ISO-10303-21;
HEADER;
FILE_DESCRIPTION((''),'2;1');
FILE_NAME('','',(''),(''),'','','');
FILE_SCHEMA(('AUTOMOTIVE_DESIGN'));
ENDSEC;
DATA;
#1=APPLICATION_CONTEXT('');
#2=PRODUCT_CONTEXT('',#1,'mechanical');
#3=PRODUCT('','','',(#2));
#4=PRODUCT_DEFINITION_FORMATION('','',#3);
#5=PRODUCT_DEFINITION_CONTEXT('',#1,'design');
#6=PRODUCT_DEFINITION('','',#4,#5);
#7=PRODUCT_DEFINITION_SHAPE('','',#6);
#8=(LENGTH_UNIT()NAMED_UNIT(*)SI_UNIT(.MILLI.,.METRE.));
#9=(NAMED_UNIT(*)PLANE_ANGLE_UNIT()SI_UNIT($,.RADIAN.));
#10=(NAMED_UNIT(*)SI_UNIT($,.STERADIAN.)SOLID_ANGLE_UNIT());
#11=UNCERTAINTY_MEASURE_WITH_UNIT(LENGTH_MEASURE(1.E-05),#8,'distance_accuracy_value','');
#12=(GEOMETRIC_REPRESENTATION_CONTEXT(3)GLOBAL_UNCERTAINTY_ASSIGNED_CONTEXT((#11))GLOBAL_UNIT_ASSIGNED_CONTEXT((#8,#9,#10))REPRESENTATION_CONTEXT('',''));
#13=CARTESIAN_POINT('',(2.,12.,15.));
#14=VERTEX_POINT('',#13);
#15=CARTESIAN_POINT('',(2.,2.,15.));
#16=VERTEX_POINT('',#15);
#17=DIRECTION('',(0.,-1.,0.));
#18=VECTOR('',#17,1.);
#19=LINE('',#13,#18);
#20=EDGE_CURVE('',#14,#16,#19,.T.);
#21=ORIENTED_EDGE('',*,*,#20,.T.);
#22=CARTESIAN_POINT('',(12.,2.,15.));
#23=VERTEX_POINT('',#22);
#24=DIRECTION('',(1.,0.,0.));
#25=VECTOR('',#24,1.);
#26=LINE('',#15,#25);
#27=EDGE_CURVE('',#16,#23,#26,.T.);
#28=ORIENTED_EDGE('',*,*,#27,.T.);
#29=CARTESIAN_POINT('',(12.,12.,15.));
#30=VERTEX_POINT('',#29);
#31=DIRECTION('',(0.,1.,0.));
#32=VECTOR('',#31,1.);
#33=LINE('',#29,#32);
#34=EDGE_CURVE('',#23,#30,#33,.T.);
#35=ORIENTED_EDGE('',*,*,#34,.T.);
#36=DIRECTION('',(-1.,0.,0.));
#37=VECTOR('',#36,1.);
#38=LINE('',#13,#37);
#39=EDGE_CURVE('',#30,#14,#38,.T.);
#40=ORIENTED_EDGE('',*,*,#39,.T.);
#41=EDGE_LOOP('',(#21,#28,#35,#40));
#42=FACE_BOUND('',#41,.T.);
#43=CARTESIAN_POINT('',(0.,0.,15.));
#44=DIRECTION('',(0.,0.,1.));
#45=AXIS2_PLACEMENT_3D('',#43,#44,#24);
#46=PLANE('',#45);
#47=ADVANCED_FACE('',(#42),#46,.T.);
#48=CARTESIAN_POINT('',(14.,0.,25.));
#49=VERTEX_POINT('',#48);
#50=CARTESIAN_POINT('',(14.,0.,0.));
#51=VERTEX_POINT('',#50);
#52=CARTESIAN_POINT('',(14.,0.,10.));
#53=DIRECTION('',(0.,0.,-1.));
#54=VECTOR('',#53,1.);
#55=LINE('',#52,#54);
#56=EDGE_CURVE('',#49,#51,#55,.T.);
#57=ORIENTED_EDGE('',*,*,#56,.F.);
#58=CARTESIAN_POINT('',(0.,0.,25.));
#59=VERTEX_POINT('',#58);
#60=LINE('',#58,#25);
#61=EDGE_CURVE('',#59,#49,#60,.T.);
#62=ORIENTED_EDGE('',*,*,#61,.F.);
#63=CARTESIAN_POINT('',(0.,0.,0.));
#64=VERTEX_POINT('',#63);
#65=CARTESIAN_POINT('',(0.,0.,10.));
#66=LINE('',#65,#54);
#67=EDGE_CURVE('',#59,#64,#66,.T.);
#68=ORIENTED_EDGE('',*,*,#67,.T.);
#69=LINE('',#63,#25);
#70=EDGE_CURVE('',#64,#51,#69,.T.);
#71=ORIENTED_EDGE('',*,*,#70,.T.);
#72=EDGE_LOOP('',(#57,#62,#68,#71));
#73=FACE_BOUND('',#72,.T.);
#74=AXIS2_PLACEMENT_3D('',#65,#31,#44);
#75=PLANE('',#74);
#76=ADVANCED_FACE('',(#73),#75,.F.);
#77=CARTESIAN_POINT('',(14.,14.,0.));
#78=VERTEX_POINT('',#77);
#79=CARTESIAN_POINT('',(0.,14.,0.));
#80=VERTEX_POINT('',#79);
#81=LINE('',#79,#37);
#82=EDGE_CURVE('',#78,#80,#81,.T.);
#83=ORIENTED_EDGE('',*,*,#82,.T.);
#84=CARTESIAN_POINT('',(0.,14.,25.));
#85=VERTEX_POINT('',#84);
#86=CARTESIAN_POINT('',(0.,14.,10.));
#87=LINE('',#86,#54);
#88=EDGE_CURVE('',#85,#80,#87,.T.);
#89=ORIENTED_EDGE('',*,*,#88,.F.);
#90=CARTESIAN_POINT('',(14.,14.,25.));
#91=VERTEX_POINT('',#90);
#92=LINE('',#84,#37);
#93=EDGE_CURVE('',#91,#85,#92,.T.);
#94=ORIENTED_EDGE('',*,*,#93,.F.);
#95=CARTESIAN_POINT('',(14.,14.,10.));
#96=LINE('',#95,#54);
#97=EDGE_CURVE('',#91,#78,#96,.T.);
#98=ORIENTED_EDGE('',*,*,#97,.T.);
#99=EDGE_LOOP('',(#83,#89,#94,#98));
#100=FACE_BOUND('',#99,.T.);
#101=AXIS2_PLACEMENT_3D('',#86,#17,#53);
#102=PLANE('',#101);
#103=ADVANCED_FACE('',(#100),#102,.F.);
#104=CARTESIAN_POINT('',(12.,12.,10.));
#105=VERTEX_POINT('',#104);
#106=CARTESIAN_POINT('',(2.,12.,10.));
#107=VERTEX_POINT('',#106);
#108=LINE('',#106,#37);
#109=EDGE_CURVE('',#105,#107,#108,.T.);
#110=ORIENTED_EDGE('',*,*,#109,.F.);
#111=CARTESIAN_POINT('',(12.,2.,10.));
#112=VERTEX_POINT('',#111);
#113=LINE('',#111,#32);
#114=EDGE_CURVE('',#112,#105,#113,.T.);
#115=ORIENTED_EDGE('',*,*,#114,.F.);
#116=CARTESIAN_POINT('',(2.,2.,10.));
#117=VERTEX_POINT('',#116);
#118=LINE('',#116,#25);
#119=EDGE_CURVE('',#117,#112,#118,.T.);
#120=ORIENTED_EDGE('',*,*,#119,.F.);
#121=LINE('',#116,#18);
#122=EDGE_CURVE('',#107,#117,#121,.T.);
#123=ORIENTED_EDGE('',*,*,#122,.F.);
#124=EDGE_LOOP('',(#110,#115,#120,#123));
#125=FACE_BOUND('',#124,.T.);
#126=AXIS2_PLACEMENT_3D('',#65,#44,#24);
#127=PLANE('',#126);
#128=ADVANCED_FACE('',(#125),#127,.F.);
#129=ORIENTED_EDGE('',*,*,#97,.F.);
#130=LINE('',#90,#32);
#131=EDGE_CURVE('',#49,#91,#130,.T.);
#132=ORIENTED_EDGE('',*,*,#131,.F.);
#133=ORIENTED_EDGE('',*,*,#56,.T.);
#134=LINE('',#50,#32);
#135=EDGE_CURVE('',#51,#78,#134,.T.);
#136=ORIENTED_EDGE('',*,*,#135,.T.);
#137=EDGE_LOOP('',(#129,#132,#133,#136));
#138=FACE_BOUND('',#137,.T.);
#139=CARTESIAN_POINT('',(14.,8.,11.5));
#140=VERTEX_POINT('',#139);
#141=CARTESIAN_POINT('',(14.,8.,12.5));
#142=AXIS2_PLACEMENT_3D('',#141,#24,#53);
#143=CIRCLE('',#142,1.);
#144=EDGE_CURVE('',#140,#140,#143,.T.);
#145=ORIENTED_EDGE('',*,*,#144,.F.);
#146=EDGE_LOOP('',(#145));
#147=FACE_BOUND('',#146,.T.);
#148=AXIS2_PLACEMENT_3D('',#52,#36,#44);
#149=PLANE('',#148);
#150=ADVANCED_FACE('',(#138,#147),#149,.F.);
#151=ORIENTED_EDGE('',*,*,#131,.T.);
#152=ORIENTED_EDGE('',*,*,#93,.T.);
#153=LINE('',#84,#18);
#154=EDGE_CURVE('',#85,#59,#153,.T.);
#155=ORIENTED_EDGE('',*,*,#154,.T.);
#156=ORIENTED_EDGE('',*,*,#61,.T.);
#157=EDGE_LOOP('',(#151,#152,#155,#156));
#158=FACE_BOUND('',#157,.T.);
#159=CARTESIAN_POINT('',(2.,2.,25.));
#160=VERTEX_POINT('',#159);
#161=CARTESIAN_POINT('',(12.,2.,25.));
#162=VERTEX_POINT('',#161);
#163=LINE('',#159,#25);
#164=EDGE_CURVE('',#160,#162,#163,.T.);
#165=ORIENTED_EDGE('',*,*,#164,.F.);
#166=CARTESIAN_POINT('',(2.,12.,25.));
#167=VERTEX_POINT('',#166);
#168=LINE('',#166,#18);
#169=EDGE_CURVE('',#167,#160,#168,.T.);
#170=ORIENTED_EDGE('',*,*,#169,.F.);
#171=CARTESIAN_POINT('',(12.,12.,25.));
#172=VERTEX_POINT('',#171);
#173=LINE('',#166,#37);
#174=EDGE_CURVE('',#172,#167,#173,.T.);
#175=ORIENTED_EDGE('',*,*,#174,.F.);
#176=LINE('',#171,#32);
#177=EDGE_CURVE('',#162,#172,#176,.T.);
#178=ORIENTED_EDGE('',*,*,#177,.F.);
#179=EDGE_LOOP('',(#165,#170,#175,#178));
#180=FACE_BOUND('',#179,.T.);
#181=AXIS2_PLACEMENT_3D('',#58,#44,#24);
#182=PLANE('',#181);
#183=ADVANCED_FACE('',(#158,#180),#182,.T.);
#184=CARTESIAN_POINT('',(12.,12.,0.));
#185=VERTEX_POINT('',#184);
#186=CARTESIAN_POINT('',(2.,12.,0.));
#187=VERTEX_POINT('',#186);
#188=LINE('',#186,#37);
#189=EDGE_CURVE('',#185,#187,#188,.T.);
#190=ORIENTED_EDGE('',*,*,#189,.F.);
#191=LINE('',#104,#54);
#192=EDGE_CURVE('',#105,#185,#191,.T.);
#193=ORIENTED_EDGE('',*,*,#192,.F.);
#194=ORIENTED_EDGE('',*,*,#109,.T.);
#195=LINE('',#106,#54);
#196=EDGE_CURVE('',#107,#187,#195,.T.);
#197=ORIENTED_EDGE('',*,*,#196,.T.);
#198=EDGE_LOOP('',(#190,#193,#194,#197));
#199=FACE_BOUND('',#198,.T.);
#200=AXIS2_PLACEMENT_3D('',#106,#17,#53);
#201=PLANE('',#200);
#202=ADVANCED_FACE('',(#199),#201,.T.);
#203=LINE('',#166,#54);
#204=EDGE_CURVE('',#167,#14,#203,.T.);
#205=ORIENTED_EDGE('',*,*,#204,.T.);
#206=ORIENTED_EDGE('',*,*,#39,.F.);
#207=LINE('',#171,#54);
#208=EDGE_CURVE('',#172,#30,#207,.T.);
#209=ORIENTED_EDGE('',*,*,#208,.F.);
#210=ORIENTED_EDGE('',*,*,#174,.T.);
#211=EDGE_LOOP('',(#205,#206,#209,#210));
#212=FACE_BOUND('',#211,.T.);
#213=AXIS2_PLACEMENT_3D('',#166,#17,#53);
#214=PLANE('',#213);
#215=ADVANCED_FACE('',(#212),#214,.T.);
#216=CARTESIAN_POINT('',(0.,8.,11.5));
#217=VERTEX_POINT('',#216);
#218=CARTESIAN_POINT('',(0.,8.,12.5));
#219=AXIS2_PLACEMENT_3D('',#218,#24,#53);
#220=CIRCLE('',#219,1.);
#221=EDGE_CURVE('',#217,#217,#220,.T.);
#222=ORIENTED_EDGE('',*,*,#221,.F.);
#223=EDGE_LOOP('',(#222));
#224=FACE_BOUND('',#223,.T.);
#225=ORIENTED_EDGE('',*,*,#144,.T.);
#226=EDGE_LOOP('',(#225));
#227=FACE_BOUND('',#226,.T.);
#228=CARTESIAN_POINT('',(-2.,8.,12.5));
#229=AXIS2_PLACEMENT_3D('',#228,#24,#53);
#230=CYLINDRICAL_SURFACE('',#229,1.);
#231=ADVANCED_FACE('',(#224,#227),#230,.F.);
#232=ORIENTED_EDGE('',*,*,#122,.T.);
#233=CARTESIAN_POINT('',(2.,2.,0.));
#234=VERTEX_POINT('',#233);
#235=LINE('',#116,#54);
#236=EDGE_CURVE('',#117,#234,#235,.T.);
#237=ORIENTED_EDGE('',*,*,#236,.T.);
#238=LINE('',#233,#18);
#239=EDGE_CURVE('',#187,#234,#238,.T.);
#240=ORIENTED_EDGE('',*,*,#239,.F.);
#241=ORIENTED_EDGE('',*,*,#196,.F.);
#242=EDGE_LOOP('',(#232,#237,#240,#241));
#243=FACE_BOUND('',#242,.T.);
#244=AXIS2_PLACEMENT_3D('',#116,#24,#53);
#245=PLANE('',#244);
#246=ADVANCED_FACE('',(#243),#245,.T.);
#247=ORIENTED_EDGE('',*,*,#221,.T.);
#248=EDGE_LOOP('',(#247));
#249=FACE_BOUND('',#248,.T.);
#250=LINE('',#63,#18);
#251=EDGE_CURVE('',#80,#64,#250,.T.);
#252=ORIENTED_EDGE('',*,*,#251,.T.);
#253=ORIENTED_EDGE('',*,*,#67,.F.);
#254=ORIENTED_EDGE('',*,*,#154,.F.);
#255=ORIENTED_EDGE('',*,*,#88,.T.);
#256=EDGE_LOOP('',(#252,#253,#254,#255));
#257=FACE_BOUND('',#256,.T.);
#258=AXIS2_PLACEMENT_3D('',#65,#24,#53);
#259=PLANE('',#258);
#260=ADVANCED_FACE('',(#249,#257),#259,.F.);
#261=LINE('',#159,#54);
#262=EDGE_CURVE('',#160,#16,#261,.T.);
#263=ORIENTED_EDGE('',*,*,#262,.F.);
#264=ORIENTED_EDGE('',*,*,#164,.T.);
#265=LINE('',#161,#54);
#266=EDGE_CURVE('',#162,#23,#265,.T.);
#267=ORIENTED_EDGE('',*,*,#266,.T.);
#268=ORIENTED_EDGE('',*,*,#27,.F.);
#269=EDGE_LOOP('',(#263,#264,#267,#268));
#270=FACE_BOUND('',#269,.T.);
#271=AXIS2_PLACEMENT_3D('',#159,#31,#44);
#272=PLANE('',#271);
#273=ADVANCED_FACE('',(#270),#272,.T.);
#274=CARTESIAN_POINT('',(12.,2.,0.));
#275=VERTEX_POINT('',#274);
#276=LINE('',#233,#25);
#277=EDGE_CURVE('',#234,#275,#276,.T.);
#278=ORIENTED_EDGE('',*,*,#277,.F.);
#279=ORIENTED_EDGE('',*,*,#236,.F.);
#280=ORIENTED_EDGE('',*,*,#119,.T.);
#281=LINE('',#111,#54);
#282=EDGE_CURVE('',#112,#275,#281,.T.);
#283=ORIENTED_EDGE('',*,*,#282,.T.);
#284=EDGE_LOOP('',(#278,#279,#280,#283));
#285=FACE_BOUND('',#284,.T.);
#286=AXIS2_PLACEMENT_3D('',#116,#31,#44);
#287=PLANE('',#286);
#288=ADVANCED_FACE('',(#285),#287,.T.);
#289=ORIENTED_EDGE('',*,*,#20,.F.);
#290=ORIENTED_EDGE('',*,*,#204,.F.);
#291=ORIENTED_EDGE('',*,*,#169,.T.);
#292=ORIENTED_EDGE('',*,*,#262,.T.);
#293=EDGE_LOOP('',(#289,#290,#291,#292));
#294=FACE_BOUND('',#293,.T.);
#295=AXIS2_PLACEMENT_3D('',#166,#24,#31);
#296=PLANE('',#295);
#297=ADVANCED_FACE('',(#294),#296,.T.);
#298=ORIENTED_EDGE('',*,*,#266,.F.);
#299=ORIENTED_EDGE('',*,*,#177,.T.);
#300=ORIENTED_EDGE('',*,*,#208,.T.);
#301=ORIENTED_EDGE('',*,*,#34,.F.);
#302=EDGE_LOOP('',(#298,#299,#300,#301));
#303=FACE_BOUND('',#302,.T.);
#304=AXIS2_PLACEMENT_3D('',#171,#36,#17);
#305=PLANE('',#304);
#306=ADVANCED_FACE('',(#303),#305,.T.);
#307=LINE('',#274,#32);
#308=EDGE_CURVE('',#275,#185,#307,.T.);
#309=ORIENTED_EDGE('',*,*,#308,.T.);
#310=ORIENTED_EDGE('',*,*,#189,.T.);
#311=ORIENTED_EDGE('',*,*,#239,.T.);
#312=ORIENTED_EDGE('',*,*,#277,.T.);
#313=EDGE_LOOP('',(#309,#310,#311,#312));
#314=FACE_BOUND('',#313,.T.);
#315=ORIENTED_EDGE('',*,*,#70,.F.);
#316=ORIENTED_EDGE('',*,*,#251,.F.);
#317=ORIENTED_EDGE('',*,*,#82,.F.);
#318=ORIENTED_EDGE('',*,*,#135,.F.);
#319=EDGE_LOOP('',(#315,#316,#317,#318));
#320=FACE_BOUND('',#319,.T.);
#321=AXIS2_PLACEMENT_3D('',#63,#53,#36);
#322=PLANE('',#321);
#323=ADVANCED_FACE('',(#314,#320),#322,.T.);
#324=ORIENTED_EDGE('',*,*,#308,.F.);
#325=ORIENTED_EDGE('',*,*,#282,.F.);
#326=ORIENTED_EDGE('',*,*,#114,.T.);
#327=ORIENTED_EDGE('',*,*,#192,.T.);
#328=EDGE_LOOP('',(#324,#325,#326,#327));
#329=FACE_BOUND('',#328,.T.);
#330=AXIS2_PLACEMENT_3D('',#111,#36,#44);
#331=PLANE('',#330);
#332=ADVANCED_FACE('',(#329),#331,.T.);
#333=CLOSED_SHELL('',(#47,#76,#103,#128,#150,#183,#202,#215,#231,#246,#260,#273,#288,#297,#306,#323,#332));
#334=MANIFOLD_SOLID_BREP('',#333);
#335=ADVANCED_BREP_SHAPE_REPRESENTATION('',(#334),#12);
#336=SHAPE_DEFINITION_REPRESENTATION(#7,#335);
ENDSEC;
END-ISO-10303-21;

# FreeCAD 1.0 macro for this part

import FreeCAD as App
import Part
import Sketcher

V = App.Vector
Q = App.Units.Quantity

doc = App.newDocument("Part")
params = doc.addObject("Spreadsheet::Sheet", "Params")
for row, (alias, value) in enumerate([
    ("sketch1_width", "14 mm"),
    ("sketch1_width2", "10 mm"),
    ("pad1_length", "10 mm"),
    ("sketch2_width", "14 mm"),
    ("pad2_length", "5 mm"),
    ("sketch3_width", "14 mm"),
    ("sketch3_width2", "10 mm"),
    ("pad3_length", "10 mm"),
    ("sketch4_diameter", "2 mm"),
    ("pocket1_length", "16 mm"),
], start=1):
    params.set(f"A{row}", alias)
    params.set(f"B{row}", "=" + value)
    params.setAlias(f"B{row}", alias)

body = doc.addObject("PartDesign::Body", "Body")

sketch1 = body.newObject("Sketcher::SketchObject", "Sketch")
sketch1.AttachmentSupport = (doc.getObject("XY_Plane"), [""])
sketch1.MapMode = "FlatFace"
sketch1.addGeometry([
    Part.LineSegment(V(0, 14, 0), V(0, 0, 0)),
    Part.LineSegment(V(0, 0, 0), V(14, 0, 0)),
    Part.LineSegment(V(14, 0, 0), V(14, 14, 0)),
    Part.LineSegment(V(14, 14, 0), V(0, 14, 0)),
    Part.LineSegment(V(12, 2, 0), V(2, 2, 0)),
    Part.LineSegment(V(2, 2, 0), V(2, 12, 0)),
    Part.LineSegment(V(2, 12, 0), V(12, 12, 0)),
    Part.LineSegment(V(12, 12, 0), V(12, 2, 0)),
], False)
sketch1.addConstraint([
    Sketcher.Constraint("Coincident", 0, 2, 1, 1),
    Sketcher.Constraint("Coincident", 1, 2, 2, 1),
    Sketcher.Constraint("Coincident", 2, 2, 3, 1),
    Sketcher.Constraint("Coincident", 3, 2, 0, 1),
    Sketcher.Constraint("Coincident", 4, 2, 5, 1),
    Sketcher.Constraint("Coincident", 5, 2, 6, 1),
    Sketcher.Constraint("Coincident", 6, 2, 7, 1),
    Sketcher.Constraint("Coincident", 7, 2, 4, 1),
    Sketcher.Constraint("Vertical", 0),
    Sketcher.Constraint("Horizontal", 1),
    Sketcher.Constraint("Vertical", 2),
    Sketcher.Constraint("Horizontal", 3),
    Sketcher.Constraint("Horizontal", 4),
    Sketcher.Constraint("Vertical", 5),
    Sketcher.Constraint("Horizontal", 6),
    Sketcher.Constraint("Vertical", 7),
    Sketcher.Constraint("Coincident", 0, 2, -1, 1),
    Sketcher.Constraint("Equal", 3, 0),
    Sketcher.Constraint("Equal", 6, 5),
    Sketcher.Constraint("DistanceX", 1, 1, 1, 2, Q("14 mm")),
    Sketcher.Constraint("DistanceX", 4, 2, 4, 1, Q("10 mm")),
    Sketcher.Constraint("DistanceX", -1, 1, 4, 2, Q("2 mm")),
    Sketcher.Constraint("DistanceY", -1, 1, 4, 2, Q("2 mm")),
])
sketch1.setExpression("Constraints[19]", "Params.sketch1_width")
sketch1.setExpression("Constraints[20]", "Params.sketch1_width2")
pad1 = body.newObject("PartDesign::Pad", "Pad")
pad1.Profile = sketch1
pad1.setExpression("Length", "Params.pad1_length")

sketch2 = body.newObject("Sketcher::SketchObject", "Sketch001")
sketch2.AttachmentSupport = (doc.getObject("XY_Plane"), [""])
sketch2.MapMode = "FlatFace"
sketch2.AttachmentOffset = App.Placement(V(0, 0, 10), App.Rotation())
sketch2.addGeometry([
    Part.LineSegment(V(0, 14, 0), V(0, 0, 0)),
    Part.LineSegment(V(0, 0, 0), V(14, 0, 0)),
    Part.LineSegment(V(14, 0, 0), V(14, 14, 0)),
    Part.LineSegment(V(14, 14, 0), V(0, 14, 0)),
], False)
sketch2.addConstraint([
    Sketcher.Constraint("Coincident", 0, 2, 1, 1),
    Sketcher.Constraint("Coincident", 1, 2, 2, 1),
    Sketcher.Constraint("Coincident", 2, 2, 3, 1),
    Sketcher.Constraint("Coincident", 3, 2, 0, 1),
    Sketcher.Constraint("Vertical", 0),
    Sketcher.Constraint("Horizontal", 1),
    Sketcher.Constraint("Vertical", 2),
    Sketcher.Constraint("Horizontal", 3),
    Sketcher.Constraint("Coincident", 0, 2, -1, 1),
    Sketcher.Constraint("Equal", 3, 0),
    Sketcher.Constraint("DistanceX", 1, 1, 1, 2, Q("14 mm")),
])
sketch2.setExpression("Constraints[10]", "Params.sketch2_width")
pad2 = body.newObject("PartDesign::Pad", "Pad001")
pad2.Profile = sketch2
pad2.setExpression("Length", "Params.pad2_length")

sketch3 = body.newObject("Sketcher::SketchObject", "Sketch002")
sketch3.AttachmentSupport = (doc.getObject("XY_Plane"), [""])
sketch3.MapMode = "FlatFace"
sketch3.AttachmentOffset = App.Placement(V(0, 0, 15), App.Rotation())
sketch3.addGeometry([
    Part.LineSegment(V(0, 14, 0), V(0, 0, 0)),
    Part.LineSegment(V(0, 0, 0), V(14, 0, 0)),
    Part.LineSegment(V(14, 0, 0), V(14, 14, 0)),
    Part.LineSegment(V(14, 14, 0), V(0, 14, 0)),
    Part.LineSegment(V(12, 2, 0), V(2, 2, 0)),
    Part.LineSegment(V(2, 2, 0), V(2, 12, 0)),
    Part.LineSegment(V(2, 12, 0), V(12, 12, 0)),
    Part.LineSegment(V(12, 12, 0), V(12, 2, 0)),
], False)
sketch3.addConstraint([
    Sketcher.Constraint("Coincident", 0, 2, 1, 1),
    Sketcher.Constraint("Coincident", 1, 2, 2, 1),
    Sketcher.Constraint("Coincident", 2, 2, 3, 1),
    Sketcher.Constraint("Coincident", 3, 2, 0, 1),
    Sketcher.Constraint("Coincident", 4, 2, 5, 1),
    Sketcher.Constraint("Coincident", 5, 2, 6, 1),
    Sketcher.Constraint("Coincident", 6, 2, 7, 1),
    Sketcher.Constraint("Coincident", 7, 2, 4, 1),
    Sketcher.Constraint("Vertical", 0),
    Sketcher.Constraint("Horizontal", 1),
    Sketcher.Constraint("Vertical", 2),
    Sketcher.Constraint("Horizontal", 3),
    Sketcher.Constraint("Horizontal", 4),
    Sketcher.Constraint("Vertical", 5),
    Sketcher.Constraint("Horizontal", 6),
    Sketcher.Constraint("Vertical", 7),
    Sketcher.Constraint("Coincident", 0, 2, -1, 1),
    Sketcher.Constraint("Equal", 3, 0),
    Sketcher.Constraint("Equal", 6, 5),
    Sketcher.Constraint("DistanceX", 1, 1, 1, 2, Q("14 mm")),
    Sketcher.Constraint("DistanceX", 4, 2, 4, 1, Q("10 mm")),
    Sketcher.Constraint("DistanceX", -1, 1, 4, 2, Q("2 mm")),
    Sketcher.Constraint("DistanceY", -1, 1, 4, 2, Q("2 mm")),
])
sketch3.setExpression("Constraints[19]", "Params.sketch3_width")
sketch3.setExpression("Constraints[20]", "Params.sketch3_width2")
pad3 = body.newObject("PartDesign::Pad", "Pad002")
pad3.Profile = sketch3
pad3.setExpression("Length", "Params.pad3_length")

sketch4 = body.newObject("Sketcher::SketchObject", "Sketch003")
sketch4.AttachmentSupport = (doc.getObject("YZ_Plane"), [""])
sketch4.MapMode = "FlatFace"
sketch4.AttachmentOffset = App.Placement(V(0, 0, 14), App.Rotation())
sketch4.addGeometry(Part.Circle(V(8, 12.5, 0), V(0, 0, 1), 1), False)
sketch4.addConstraint([
    Sketcher.Constraint("Diameter", 0, Q("2 mm")),
    Sketcher.Constraint("DistanceX", -1, 1, 0, 3, Q("8 mm")),
    Sketcher.Constraint("DistanceY", -1, 1, 0, 3, Q("12.5 mm")),
])
sketch4.setExpression("Constraints[0]", "Params.sketch4_diameter")
pocket1 = body.newObject("PartDesign::Pocket", "Pocket")
pocket1.Profile = sketch4
pocket1.setExpression("Length", "Params.pocket1_length")

doc.recompute()
